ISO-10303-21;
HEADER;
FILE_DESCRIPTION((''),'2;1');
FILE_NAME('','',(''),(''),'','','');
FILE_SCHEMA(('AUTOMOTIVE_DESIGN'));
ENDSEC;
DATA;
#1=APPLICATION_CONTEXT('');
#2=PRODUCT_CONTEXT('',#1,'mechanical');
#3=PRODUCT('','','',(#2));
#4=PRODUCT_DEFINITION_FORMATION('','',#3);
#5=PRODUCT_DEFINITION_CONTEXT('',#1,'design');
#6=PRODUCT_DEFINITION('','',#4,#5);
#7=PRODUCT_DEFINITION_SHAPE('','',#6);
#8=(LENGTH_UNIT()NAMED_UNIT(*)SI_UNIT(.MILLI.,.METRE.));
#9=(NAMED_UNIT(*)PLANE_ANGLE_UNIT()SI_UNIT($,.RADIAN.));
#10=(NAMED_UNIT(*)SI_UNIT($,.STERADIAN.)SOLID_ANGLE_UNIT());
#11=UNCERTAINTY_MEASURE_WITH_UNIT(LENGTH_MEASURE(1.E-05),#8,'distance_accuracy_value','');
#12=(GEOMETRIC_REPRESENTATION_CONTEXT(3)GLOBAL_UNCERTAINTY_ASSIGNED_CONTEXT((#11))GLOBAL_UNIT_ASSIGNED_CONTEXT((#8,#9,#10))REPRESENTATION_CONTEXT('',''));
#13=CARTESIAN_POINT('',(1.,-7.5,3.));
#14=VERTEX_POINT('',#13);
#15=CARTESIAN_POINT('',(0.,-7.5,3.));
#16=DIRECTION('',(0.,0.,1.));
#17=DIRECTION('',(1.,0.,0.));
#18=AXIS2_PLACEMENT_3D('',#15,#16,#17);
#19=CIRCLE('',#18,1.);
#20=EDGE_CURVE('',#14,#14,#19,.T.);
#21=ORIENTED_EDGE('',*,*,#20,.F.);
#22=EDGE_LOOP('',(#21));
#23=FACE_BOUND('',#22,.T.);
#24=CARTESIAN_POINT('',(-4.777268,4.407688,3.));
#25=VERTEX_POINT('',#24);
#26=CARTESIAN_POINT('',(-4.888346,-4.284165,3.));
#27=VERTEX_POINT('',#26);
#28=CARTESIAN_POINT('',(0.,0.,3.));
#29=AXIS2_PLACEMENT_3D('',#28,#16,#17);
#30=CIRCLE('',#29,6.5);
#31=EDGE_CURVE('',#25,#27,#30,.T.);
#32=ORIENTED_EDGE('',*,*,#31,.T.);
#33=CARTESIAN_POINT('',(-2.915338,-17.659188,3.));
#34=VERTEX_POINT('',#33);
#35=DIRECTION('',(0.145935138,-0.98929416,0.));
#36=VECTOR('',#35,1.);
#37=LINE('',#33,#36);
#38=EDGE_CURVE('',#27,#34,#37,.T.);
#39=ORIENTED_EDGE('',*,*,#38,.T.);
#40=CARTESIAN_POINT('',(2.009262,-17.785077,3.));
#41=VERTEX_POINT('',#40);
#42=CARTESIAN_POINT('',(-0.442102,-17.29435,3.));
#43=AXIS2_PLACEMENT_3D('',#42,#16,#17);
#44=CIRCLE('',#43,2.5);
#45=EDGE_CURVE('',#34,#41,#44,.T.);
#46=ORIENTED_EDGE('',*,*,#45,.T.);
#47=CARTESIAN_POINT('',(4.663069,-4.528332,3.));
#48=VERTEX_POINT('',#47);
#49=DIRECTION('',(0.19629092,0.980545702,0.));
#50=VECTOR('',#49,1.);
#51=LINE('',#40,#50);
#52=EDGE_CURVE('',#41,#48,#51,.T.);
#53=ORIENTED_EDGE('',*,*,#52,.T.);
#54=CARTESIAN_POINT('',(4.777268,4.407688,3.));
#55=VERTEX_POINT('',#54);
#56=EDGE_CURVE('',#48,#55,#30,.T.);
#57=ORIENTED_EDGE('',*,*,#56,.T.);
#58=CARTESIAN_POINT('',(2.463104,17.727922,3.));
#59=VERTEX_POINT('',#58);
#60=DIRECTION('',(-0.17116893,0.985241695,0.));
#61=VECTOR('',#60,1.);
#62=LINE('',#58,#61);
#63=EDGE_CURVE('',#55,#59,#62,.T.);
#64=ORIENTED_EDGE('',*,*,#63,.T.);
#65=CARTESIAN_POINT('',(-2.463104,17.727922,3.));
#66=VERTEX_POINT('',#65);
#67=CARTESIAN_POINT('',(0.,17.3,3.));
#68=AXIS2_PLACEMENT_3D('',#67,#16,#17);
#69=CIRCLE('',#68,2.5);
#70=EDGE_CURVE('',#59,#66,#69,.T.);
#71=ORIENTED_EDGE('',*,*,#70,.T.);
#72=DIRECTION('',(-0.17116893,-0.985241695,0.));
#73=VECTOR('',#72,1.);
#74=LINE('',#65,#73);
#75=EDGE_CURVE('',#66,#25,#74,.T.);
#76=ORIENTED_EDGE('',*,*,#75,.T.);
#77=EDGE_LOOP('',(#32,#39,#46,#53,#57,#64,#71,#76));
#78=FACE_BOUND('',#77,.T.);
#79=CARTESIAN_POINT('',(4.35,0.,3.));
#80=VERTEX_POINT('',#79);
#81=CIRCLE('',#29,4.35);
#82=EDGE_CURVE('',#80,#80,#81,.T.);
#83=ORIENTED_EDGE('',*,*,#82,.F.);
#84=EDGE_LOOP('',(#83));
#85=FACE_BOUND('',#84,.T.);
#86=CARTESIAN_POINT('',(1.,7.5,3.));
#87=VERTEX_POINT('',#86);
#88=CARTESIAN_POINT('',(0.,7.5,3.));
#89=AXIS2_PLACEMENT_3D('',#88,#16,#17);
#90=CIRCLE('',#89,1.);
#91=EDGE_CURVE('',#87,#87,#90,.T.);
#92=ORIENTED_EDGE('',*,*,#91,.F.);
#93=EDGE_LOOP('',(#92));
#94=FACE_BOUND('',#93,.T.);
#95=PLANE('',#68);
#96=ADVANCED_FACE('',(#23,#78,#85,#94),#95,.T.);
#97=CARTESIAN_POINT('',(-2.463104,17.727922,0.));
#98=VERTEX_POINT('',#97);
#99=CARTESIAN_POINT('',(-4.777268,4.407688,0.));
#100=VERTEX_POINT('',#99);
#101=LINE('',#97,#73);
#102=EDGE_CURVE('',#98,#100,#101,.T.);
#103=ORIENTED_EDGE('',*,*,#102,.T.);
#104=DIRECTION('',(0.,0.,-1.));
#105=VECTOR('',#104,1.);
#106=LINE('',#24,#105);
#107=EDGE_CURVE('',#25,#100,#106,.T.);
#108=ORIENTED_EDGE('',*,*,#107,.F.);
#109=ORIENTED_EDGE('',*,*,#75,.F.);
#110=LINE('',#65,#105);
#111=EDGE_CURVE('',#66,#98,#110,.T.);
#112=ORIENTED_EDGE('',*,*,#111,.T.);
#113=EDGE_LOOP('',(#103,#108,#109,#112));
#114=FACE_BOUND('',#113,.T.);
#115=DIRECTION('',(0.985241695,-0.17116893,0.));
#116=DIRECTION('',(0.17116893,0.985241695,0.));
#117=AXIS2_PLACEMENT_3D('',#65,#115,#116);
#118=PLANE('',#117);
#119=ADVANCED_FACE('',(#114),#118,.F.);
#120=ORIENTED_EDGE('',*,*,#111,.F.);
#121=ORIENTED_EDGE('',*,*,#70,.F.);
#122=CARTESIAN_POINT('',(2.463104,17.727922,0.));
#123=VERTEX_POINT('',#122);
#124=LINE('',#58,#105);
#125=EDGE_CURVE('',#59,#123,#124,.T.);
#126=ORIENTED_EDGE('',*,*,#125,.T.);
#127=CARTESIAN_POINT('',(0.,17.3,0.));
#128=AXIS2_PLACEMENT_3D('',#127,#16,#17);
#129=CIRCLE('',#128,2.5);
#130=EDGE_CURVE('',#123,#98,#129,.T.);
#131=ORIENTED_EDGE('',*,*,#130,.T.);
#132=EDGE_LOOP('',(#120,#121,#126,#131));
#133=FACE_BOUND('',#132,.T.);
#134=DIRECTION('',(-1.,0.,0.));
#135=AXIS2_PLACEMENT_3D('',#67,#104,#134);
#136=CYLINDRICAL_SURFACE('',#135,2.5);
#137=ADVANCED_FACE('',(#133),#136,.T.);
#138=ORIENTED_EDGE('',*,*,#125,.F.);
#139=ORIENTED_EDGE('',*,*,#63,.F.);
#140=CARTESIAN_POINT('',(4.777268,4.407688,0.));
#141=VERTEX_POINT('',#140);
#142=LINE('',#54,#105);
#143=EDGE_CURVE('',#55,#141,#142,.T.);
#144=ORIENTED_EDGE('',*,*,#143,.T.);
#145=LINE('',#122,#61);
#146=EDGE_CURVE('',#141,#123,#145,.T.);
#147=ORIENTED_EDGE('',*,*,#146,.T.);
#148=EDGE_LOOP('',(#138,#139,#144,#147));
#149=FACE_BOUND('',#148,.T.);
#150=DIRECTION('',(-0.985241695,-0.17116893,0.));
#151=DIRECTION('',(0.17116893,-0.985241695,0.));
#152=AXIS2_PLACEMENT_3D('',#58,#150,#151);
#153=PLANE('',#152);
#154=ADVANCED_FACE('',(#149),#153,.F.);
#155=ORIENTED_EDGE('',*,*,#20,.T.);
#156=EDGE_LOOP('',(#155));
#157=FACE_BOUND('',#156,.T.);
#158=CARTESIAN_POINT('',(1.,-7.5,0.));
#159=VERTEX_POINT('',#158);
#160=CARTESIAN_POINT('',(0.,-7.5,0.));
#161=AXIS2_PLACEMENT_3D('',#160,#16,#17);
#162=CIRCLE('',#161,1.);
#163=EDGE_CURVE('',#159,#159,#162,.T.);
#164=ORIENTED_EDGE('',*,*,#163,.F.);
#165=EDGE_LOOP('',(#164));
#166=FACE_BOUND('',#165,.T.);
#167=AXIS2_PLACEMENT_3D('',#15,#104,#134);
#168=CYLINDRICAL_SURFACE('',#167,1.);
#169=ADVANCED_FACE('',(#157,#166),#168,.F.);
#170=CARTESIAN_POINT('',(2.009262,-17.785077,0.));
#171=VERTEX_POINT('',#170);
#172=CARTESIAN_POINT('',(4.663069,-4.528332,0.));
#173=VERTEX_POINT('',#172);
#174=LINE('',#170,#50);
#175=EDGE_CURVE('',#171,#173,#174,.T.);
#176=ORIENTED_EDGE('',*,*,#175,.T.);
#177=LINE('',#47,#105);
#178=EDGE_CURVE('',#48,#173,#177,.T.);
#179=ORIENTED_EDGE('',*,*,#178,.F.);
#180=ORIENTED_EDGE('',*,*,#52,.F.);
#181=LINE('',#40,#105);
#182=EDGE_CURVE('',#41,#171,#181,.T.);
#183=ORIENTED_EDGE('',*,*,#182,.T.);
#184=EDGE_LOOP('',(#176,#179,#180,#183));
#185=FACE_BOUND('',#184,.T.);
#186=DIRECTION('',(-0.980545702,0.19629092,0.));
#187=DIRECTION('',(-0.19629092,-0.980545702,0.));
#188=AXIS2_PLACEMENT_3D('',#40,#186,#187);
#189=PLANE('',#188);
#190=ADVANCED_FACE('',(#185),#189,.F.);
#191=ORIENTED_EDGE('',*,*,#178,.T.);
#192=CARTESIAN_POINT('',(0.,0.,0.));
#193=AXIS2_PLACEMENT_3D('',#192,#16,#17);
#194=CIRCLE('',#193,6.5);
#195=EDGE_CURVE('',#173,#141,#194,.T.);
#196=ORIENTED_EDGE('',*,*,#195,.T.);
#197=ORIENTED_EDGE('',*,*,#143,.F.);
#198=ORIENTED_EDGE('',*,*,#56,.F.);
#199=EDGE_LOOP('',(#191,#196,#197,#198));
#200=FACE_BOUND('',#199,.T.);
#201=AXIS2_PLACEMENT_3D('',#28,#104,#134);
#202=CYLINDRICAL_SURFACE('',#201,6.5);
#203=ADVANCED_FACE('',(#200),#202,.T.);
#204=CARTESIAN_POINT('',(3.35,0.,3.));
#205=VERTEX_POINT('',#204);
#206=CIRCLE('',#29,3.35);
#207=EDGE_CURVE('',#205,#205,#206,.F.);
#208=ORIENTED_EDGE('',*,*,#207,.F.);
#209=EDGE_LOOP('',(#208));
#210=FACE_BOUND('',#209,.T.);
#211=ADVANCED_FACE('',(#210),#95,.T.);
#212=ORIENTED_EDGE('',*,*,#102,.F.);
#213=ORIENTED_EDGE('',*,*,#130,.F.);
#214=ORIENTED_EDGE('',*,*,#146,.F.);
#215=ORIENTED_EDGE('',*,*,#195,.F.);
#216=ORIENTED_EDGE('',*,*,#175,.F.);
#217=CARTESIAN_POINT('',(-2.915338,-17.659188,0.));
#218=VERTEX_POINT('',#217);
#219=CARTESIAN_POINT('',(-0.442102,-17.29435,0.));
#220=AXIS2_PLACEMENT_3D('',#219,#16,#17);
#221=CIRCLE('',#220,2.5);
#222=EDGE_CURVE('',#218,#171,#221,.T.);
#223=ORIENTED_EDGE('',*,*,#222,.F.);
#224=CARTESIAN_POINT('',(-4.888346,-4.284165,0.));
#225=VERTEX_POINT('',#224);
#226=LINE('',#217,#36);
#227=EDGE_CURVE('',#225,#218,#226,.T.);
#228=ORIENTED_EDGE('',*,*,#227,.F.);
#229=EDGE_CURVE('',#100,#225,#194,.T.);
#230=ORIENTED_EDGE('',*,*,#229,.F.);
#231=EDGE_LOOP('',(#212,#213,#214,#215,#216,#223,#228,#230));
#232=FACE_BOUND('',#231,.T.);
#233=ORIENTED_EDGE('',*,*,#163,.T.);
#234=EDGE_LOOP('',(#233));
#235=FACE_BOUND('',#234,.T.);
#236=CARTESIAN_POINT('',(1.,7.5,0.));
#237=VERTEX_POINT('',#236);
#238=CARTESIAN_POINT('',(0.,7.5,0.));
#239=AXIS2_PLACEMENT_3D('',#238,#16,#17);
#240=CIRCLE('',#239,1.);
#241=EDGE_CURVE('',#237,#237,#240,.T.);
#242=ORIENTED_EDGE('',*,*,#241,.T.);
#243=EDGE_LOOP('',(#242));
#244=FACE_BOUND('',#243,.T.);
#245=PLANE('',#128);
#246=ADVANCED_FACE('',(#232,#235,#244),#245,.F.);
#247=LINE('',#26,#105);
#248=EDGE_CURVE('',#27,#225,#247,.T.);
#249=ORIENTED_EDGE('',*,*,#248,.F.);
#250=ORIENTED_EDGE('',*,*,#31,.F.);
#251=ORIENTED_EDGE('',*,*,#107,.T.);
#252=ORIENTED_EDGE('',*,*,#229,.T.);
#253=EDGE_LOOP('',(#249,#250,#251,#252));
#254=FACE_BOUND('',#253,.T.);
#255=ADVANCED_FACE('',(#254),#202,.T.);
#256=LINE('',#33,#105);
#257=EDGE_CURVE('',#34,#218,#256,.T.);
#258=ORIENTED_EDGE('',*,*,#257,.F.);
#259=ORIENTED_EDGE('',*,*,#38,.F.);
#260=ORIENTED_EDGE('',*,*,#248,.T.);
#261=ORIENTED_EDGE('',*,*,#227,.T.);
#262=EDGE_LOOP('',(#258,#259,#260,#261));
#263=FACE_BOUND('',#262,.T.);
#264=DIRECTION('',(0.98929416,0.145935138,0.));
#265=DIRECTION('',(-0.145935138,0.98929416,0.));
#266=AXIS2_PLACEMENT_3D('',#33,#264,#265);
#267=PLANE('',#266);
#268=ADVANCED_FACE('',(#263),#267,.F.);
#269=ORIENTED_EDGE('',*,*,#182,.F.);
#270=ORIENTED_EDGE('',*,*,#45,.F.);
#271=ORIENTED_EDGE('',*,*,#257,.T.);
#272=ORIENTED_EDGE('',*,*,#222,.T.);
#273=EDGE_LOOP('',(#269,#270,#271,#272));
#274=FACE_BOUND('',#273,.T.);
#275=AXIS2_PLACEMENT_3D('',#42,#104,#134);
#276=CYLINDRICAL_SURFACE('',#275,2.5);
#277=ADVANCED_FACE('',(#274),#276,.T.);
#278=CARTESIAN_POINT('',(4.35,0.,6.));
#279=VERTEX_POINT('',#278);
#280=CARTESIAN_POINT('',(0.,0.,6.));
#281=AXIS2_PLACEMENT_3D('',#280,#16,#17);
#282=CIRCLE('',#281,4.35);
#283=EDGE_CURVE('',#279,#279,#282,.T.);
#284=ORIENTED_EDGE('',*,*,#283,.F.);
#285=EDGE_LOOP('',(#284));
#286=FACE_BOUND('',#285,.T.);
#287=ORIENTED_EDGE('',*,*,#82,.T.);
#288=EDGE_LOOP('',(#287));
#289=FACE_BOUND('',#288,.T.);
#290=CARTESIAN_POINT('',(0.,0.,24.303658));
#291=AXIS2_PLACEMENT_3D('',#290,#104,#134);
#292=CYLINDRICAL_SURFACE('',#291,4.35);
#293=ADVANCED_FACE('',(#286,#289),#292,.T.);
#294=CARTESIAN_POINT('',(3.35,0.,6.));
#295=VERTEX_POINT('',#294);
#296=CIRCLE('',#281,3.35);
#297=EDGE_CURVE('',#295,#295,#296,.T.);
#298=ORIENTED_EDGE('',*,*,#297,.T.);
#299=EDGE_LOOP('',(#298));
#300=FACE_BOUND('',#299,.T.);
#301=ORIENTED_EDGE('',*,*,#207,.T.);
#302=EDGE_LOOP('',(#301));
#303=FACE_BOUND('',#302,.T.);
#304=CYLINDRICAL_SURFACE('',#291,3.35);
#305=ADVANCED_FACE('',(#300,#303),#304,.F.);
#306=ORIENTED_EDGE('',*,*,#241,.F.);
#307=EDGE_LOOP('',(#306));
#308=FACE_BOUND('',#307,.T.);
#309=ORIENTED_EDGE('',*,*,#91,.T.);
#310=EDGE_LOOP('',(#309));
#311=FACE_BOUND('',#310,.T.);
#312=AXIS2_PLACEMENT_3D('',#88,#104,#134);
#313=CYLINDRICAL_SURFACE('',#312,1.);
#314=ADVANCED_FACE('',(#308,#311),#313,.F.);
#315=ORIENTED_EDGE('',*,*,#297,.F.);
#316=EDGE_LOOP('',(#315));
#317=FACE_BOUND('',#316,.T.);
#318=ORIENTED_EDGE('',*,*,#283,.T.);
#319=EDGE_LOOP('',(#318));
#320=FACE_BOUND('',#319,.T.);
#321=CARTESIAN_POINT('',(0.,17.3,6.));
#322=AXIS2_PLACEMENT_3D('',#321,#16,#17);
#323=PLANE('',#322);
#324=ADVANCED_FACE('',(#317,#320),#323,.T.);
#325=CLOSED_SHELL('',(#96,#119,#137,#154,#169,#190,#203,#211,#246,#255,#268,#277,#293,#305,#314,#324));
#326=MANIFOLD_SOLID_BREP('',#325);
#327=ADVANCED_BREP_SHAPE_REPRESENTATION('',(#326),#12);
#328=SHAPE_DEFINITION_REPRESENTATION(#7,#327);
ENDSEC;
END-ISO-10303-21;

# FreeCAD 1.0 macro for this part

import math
import FreeCAD as App
import Part
import Sketcher
from FreeCAD import Vector

doc = App.newDocument("Part")
params = doc.addObject("Spreadsheet::Sheet", "Params")
for row, (alias, value) in enumerate([
    ("sketch1_diameter", "2 mm"),
    ("sketch1_radius", "6.5 mm"),
    ("sketch1_radius2", "2.5 mm"),
    ("pad1_length", "3 mm"),
    ("sketch2_diameter", "8.7 mm"),
    ("sketch2_diameter2", "6.7 mm"),
    ("pad2_length", "3 mm"),
], start=1):
    params.set(f"A{row}", alias)
    params.set(f"B{row}", "=" + value)
    params.setAlias(f"B{row}", alias)

body = doc.addObject("PartDesign::Body", "Body")

sketch1 = body.newObject("Sketcher::SketchObject", "Sketch")
sketch1.AttachmentSupport = (doc.getObject("XY_Plane"), [""])
sketch1.MapMode = "FlatFace"
sketch1.addGeometry([
    Part.LineSegment(Vector(-2.5, 17.7, 0), Vector(-4.8, 4.4, 0)),
    Part.ArcOfCircle(Part.Circle(Vector(0, 0, 0), Vector(0, 0, 1), 6.5), math.radians(137), math.radians(221)),
    Part.LineSegment(Vector(-4.9, -4.3, 0), Vector(-2.9, -17.7, 0)),
    Part.ArcOfCircle(Part.Circle(Vector(-0.4, -17.3, 0), Vector(0, 0, 1), 2.5), math.radians(-172), math.radians(-11)),
    Part.LineSegment(Vector(2, -17.8, 0), Vector(4.7, -4.5, 0)),
    Part.ArcOfCircle(Part.Circle(Vector(0, 0, 0), Vector(0, 0, 1), 6.5), math.radians(-44), math.radians(43)),
    Part.LineSegment(Vector(4.8, 4.4, 0), Vector(2.5, 17.7, 0)),
    Part.ArcOfCircle(Part.Circle(Vector(0, 17.3, 0), Vector(0, 0, 1), 2.5), math.radians(10), math.radians(170)),
    Part.Circle(Vector(0, -7.5, 0), Vector(0, 0, 1), 1),
    Part.Circle(Vector(0, 7.5, 0), Vector(0, 0, 1), 1),
], False)
sketch1.addConstraint([
    Sketcher.Constraint("Coincident", 0, 2, 1, 1),
    Sketcher.Constraint("Coincident", 1, 2, 2, 1),
    Sketcher.Constraint("Tangent", 2, 2, 3, 1),
    Sketcher.Constraint("Tangent", 3, 2, 4, 1),
    Sketcher.Constraint("Coincident", 4, 2, 5, 1),
    Sketcher.Constraint("Coincident", 5, 2, 6, 1),
    Sketcher.Constraint("Tangent", 6, 2, 7, 1),
    Sketcher.Constraint("Tangent", 7, 2, 0, 1),
    Sketcher.Constraint("Coincident", 1, 3, -1, 1),
    Sketcher.Constraint("Coincident", 5, 3, -1, 1),
    Sketcher.Constraint("Equal", 1, 5),
    Sketcher.Constraint("Equal", 3, 7),
    Sketcher.Constraint("Equal", 8, 9),
    Sketcher.Constraint("Symmetric", 8, 3, 9, 3, -1, 1),
    Sketcher.Constraint("Symmetric", 6, 2, 7, 2, -2),
    Sketcher.Constraint("PointOnObject", 8, 3, -2),
    Sketcher.Constraint("Equal", 0, 2),
    Sketcher.Constraint("Equal", 2, 4),
    Sketcher.Constraint("Diameter", 8, 2.0),
    Sketcher.Constraint("Radius", 1, 6.5),
    Sketcher.Constraint("Radius", 3, 2.5),
    Sketcher.Constraint("DistanceY", 8, 3, 9, 3, 15.0),
    Sketcher.Constraint("DistanceY", -1, 1, 7, 3, 17.3),
    Sketcher.Constraint("DistanceX", 2, 2, 3, 2, 4.9246),
    Sketcher.Constraint("DistanceX", 4, 2, 5, 2, 0.114199),
    Sketcher.Constraint("DistanceY", 3, 3, -1, 1, 17.29435),
])
sketch1.setExpression("Constraints[18]", "Params.sketch1_diameter")
sketch1.setExpression("Constraints[19]", "Params.sketch1_radius")
sketch1.setExpression("Constraints[20]", "Params.sketch1_radius2")
pad1 = body.newObject("PartDesign::Pad", "Pad")
pad1.Profile = sketch1
pad1.setExpression("Length", "Params.pad1_length")

sketch2 = body.newObject("Sketcher::SketchObject", "Sketch001")
sketch2.AttachmentSupport = (doc.getObject("XY_Plane"), [""])
sketch2.MapMode = "FlatFace"
sketch2.AttachmentOffset = App.Placement(Vector(0, 0, 3), App.Rotation())
sketch2.addGeometry([
    Part.Circle(Vector(0, 0, 0), Vector(0, 0, 1), 4.3),
    Part.Circle(Vector(0, 0, 0), Vector(0, 0, 1), 3.4),
], False)
sketch2.addConstraint([
    Sketcher.Constraint("Coincident", 0, 3, -1, 1),
    Sketcher.Constraint("Coincident", 1, 3, -1, 1),
    Sketcher.Constraint("Diameter", 0, 8.7),
    Sketcher.Constraint("Diameter", 1, 6.7),
])
sketch2.setExpression("Constraints[2]", "Params.sketch2_diameter")
sketch2.setExpression("Constraints[3]", "Params.sketch2_diameter2")
pad2 = body.newObject("PartDesign::Pad", "Pad001")
pad2.Profile = sketch2
pad2.setExpression("Length", "Params.pad2_length")

doc.recompute()
